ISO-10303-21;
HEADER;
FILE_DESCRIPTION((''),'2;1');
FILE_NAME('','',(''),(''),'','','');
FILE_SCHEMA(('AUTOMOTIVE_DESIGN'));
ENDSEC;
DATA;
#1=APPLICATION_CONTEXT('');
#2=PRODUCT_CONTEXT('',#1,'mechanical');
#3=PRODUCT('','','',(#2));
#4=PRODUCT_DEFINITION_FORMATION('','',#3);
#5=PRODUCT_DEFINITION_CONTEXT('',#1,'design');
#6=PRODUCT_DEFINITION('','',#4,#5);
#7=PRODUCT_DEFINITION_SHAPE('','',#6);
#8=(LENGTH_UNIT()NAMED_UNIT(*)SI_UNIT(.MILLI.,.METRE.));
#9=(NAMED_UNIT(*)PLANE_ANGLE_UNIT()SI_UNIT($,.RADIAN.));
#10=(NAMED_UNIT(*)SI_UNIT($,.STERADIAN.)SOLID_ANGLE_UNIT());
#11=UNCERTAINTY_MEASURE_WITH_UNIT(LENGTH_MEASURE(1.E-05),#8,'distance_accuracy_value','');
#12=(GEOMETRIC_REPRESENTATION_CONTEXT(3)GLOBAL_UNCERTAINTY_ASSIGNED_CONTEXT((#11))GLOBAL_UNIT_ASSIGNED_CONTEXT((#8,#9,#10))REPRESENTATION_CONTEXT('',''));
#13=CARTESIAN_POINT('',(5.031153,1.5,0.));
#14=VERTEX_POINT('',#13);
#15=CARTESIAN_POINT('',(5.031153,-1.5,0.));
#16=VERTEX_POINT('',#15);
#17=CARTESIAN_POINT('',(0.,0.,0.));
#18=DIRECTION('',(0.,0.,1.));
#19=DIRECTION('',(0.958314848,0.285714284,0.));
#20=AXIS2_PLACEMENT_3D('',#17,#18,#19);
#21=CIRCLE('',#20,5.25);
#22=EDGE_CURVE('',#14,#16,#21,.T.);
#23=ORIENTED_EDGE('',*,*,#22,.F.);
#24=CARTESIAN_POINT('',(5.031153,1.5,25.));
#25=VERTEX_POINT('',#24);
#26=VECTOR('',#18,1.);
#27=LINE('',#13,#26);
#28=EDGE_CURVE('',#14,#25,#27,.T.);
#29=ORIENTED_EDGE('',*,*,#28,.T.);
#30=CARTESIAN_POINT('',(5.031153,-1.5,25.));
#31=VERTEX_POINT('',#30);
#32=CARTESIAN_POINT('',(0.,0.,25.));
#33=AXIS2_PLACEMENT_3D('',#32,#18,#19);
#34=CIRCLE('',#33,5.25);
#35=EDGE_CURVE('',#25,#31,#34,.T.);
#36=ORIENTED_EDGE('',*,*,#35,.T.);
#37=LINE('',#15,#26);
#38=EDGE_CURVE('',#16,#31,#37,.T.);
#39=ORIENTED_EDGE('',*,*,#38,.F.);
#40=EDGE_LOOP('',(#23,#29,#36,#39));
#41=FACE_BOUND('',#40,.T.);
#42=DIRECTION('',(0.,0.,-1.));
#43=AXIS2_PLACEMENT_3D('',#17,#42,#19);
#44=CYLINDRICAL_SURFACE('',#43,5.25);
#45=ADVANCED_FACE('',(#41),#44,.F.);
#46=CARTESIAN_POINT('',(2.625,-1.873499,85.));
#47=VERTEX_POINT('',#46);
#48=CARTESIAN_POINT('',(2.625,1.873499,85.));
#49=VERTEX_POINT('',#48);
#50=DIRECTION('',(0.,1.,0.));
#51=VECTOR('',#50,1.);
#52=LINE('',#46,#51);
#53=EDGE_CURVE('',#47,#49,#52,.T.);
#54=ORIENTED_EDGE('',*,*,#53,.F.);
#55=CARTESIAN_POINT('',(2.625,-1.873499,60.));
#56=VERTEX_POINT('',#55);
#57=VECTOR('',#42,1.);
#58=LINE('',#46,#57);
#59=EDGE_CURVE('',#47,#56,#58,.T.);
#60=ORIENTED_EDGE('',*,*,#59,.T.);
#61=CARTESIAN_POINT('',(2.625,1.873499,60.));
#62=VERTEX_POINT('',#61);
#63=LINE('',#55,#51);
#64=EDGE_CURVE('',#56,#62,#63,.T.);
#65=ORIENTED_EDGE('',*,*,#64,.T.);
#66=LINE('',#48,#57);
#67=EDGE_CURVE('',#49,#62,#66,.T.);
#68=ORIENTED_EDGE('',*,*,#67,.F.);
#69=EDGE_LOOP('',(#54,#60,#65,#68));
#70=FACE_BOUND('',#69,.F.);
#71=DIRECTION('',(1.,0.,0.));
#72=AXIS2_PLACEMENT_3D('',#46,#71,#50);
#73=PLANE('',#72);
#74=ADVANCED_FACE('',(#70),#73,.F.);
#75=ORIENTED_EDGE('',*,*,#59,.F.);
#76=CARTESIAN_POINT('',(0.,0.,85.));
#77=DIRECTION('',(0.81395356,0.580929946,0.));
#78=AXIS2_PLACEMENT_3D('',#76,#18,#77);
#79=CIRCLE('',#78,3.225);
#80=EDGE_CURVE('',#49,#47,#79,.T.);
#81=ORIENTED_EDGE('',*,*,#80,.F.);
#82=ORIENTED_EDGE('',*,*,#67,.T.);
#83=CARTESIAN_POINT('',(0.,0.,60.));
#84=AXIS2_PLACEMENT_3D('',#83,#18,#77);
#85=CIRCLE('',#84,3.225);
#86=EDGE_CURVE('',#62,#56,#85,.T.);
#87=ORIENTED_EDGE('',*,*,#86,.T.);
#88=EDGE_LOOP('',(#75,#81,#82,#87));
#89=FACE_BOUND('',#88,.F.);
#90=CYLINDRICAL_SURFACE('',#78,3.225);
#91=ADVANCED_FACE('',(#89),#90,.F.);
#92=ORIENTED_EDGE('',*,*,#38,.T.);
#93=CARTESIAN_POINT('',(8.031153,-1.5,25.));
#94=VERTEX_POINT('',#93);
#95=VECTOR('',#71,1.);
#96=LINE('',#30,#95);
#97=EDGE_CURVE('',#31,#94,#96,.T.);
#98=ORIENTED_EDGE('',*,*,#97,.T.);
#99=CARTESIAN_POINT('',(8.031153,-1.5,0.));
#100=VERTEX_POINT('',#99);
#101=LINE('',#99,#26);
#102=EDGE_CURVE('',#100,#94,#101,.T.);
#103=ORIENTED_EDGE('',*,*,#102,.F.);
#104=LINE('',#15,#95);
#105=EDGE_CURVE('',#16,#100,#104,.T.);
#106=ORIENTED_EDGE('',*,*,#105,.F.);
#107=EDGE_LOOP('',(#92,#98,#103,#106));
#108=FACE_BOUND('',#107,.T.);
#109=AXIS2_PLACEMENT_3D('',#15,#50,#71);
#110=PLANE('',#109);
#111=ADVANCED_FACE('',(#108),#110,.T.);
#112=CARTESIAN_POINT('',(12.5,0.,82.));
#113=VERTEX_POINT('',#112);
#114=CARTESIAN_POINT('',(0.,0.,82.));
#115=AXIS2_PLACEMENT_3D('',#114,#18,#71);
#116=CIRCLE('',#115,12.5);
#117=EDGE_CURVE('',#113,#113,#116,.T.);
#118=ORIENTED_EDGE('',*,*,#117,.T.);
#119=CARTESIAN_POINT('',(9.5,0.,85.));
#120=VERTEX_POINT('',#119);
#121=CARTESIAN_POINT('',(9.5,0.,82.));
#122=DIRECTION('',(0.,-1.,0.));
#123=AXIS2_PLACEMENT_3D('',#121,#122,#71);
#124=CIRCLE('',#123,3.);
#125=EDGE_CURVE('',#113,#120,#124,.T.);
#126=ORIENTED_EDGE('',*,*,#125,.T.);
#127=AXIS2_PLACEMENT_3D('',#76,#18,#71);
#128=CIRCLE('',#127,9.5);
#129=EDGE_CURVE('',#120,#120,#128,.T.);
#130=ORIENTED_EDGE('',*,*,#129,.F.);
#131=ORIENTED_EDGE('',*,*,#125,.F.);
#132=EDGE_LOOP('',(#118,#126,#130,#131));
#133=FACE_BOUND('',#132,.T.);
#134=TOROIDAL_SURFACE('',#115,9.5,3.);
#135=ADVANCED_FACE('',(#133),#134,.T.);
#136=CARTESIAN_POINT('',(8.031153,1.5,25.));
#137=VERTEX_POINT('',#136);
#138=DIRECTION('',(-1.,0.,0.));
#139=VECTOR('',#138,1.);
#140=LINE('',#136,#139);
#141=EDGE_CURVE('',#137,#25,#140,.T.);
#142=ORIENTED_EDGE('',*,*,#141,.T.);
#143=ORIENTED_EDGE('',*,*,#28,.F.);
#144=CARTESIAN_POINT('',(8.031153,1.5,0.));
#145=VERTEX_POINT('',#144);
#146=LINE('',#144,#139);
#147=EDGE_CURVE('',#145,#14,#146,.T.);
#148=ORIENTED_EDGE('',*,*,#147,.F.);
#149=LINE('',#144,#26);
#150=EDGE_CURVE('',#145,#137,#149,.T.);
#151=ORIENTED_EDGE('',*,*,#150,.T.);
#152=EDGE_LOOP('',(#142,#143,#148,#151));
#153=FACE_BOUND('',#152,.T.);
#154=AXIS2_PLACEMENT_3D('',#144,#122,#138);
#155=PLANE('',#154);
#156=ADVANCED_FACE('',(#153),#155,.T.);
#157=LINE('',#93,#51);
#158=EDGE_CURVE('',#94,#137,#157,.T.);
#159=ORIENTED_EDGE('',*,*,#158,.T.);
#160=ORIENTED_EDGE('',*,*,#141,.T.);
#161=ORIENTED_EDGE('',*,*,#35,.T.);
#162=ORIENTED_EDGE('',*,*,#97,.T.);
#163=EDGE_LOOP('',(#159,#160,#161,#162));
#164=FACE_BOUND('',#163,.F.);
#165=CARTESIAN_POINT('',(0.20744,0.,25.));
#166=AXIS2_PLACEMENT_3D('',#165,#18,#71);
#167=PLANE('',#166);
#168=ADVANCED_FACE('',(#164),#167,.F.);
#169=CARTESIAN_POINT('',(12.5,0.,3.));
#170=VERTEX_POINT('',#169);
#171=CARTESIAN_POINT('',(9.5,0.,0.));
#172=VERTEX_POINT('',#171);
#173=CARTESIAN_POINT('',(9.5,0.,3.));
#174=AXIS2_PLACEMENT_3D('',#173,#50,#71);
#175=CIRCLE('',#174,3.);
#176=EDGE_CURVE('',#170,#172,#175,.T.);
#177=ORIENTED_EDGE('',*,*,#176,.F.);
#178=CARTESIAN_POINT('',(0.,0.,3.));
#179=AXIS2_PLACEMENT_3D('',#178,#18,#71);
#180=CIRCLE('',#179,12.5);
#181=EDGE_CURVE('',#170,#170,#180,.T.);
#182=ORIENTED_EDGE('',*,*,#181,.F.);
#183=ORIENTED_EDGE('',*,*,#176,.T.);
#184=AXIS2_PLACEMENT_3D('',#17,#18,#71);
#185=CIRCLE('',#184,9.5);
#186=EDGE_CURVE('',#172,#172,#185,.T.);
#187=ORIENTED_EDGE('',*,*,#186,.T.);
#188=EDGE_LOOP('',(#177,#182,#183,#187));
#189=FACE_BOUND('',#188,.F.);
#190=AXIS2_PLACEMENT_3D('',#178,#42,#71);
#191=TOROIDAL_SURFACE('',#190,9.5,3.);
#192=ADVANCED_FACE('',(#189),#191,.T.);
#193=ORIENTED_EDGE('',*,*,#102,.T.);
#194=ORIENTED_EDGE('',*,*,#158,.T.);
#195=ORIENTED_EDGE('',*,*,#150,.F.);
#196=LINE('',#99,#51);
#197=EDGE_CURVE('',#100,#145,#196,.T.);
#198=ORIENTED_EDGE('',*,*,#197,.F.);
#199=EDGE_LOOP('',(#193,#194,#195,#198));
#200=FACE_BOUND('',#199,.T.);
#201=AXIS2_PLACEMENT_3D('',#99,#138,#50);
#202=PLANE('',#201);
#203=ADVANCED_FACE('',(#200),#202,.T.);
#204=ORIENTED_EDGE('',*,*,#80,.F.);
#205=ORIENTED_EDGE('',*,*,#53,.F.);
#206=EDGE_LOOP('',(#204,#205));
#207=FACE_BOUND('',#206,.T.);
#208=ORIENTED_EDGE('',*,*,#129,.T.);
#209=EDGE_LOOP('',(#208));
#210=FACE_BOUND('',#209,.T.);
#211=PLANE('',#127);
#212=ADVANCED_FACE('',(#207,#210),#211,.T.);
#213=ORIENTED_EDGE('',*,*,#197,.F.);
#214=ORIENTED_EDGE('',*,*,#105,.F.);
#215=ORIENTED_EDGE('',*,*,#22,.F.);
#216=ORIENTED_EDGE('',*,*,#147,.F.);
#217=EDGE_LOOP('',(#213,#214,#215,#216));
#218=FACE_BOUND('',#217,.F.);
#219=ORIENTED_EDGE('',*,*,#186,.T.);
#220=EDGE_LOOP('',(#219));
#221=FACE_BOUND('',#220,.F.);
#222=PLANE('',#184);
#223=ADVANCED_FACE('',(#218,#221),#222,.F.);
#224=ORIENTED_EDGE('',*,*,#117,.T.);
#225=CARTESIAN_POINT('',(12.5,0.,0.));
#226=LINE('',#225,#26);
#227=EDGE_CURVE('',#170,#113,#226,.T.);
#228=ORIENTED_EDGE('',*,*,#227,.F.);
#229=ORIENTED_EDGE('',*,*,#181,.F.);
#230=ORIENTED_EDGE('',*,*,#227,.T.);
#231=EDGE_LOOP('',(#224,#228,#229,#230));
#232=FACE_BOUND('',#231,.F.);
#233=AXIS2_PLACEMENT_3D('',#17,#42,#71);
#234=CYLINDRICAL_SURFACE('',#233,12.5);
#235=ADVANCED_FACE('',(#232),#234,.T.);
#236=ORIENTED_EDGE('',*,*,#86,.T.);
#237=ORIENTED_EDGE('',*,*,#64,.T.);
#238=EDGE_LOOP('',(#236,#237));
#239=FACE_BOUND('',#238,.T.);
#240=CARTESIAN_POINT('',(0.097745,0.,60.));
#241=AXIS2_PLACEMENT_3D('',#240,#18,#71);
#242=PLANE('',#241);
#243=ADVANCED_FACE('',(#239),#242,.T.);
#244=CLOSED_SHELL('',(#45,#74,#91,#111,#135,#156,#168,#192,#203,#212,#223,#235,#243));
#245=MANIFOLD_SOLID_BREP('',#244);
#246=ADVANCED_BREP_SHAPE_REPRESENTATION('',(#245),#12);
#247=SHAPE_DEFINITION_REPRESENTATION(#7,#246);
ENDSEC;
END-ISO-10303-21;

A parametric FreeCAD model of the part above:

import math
import FreeCAD as App
import Part
import Sketcher

V = App.Vector


def edges_at(feature, points):
    """Names of the edges that pass closest to the given points."""
    edges = feature.Shape.Edges
    near = lambda p: min(range(len(edges)), key=lambda i: edges[i].distToShape(Part.Vertex(*p))[0])
    return sorted({f"Edge{near(p) + 1}" for p in points})

doc = App.newDocument("Part")
params = doc.addObject("Spreadsheet::Sheet", "Params")
for row, (alias, value) in enumerate([
    ("sketch1_diameter", "25 mm"),
    ("pad1_length", "85 mm"),
    ("sketch2_width", "3 mm"),
    ("sketch2_radius", "5.25 mm"),
    ("pocket1_length", "25 mm"),
    ("pocket2_length", "25 mm"),
    ("fillet_radius", "3 mm"),
], start=1):
    params.set(f"A{row}", alias)
    params.set(f"B{row}", "=" + value)
    params.setAlias(f"B{row}", alias)

body = doc.addObject("PartDesign::Body", "Body")

sketch1 = body.newObject("Sketcher::SketchObject", "Sketch")
sketch1.AttachmentSupport = (doc.getObject("XY_Plane"), [""])
sketch1.MapMode = "FlatFace"
sketch1.addGeometry(Part.Circle(V(0, 0, 0), V(0, 0, 1), 12), False)
sketch1.addConstraint([
    Sketcher.Constraint("Coincident", 0, 3, -1, 1),
    Sketcher.Constraint("Diameter", 0, 25.0),
])
sketch1.setExpression("Constraints[1]", "Params.sketch1_diameter")
pad1 = body.newObject("PartDesign::Pad", "Pad")
pad1.Profile = sketch1
pad1.setExpression("Length", "Params.pad1_length")

sketch2 = body.newObject("Sketcher::SketchObject", "Sketch001")
sketch2.AttachmentSupport = (doc.getObject("XY_Plane"), [""])
sketch2.MapMode = "FlatFace"
sketch2.addGeometry([
    Part.ArcOfCircle(Part.Circle(V(0, 0, 0), V(0, 0, 1), 5.3), math.radians(17), math.radians(343)),
    Part.LineSegment(V(5, -1.5, 0), V(8, -1.5, 0)),
    Part.LineSegment(V(8, -1.5, 0), V(8, 1.5, 0)),
    Part.LineSegment(V(8, 1.5, 0), V(5, 1.5, 0)),
], False)
sketch2.addConstraint([
    Sketcher.Constraint("Coincident", 0, 2, 1, 1),
    Sketcher.Constraint("Coincident", 1, 2, 2, 1),
    Sketcher.Constraint("Coincident", 2, 2, 3, 1),
    Sketcher.Constraint("Coincident", 3, 2, 0, 1),
    Sketcher.Constraint("Horizontal", 1),
    Sketcher.Constraint("Vertical", 2),
    Sketcher.Constraint("Horizontal", 3),
    Sketcher.Constraint("Coincident", 0, 3, -1, 1),
    Sketcher.Constraint("Vertical", 0, 2, 3, 2),
    Sketcher.Constraint("Equal", 3, 2),
    Sketcher.Constraint("DistanceX", 1, 1, 1, 2, 3.0),
    Sketcher.Constraint("Radius", 0, 5.25),
])
sketch2.setExpression("Constraints[10]", "Params.sketch2_width")
sketch2.setExpression("Constraints[11]", "Params.sketch2_radius")
pocket1 = body.newObject("PartDesign::Pocket", "Pocket")
pocket1.Profile = sketch2
pocket1.setExpression("Length", "Params.pocket1_length")
pocket1.Reversed = True

sketch3 = body.newObject("Sketcher::SketchObject", "Sketch002")
sketch3.AttachmentSupport = (doc.getObject("XY_Plane"), [""])
sketch3.MapMode = "FlatFace"
sketch3.AttachmentOffset = App.Placement(V(0, 0, 85), App.Rotation())
sketch3.addGeometry([
    Part.LineSegment(V(2.6, -1.9, 0), V(2.6, 1.9, 0)),
    Part.ArcOfCircle(Part.Circle(V(0, 0, 0), V(0, 0, 1), 3.2), math.radians(36), math.radians(324)),
], False)
sketch3.addConstraint([
    Sketcher.Constraint("Coincident", 0, 1, 1, 2),
    Sketcher.Constraint("Coincident", 1, 1, 0, 2),
    Sketcher.Constraint("Vertical", 0),
    Sketcher.Constraint("Coincident", 1, 3, -1, 1),
    Sketcher.Constraint("Radius", 1, 3.225),
    Sketcher.Constraint("DistanceY", 0, 1, 0, 2, 3.746998),
])
pocket2 = body.newObject("PartDesign::Pocket", "Pocket001")
pocket2.Profile = sketch3
pocket2.setExpression("Length", "Params.pocket2_length")
doc.recompute()

fillet = body.newObject("PartDesign::Fillet", "Fillet")
fillet.Base = (pocket2, edges_at(pocket2, [(-12.5, 0, 85), (-12.5, 0, 0)]))
fillet.setExpression("Radius", "Params.fillet_radius")

doc.recompute()
